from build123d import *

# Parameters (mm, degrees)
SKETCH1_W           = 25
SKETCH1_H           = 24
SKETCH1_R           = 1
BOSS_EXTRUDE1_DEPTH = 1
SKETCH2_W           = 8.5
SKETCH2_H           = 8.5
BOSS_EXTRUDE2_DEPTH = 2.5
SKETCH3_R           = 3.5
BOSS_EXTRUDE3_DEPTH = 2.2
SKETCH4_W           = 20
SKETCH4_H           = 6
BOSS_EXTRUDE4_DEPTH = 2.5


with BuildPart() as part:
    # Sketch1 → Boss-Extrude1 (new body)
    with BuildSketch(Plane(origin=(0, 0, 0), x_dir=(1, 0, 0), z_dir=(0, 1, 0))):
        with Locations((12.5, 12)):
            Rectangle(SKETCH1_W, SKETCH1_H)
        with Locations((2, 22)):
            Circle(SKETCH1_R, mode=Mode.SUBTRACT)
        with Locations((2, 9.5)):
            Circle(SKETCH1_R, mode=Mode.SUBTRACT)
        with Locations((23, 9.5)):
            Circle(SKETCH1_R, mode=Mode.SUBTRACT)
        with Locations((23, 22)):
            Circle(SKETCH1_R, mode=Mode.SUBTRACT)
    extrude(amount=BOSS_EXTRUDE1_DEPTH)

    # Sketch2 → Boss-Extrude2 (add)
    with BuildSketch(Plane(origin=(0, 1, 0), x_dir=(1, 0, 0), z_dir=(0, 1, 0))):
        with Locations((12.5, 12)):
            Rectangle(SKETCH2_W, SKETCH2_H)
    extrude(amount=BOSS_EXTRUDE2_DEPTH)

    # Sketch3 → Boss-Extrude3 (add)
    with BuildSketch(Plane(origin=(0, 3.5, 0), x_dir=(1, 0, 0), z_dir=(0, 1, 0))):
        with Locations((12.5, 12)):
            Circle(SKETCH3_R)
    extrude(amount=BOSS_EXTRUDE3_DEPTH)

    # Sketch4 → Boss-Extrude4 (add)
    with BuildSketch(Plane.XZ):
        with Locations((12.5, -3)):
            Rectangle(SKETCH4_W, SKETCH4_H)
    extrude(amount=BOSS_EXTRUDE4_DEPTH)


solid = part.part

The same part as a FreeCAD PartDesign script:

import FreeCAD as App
import Part
import Sketcher
Q = App.Units.Quantity

doc = App.newDocument("Part")
body = doc.addObject("PartDesign::Body", "Body")

sketch1 = body.newObject("Sketcher::SketchObject", "Sketch")
sketch1.AttachmentSupport = (doc.getObject("XZ_Plane"), [""])
sketch1.MapMode = "FlatFace"
sketch1.addGeometry(Part.LineSegment(App.Vector(0, -24, 0), App.Vector(0, 0, 0)), False)
sketch1.addGeometry(Part.LineSegment(App.Vector(0, 0, 0), App.Vector(25, 0, 0)), False)
sketch1.addGeometry(Part.LineSegment(App.Vector(25, 0, 0), App.Vector(25, -24, 0)), False)
sketch1.addGeometry(Part.LineSegment(App.Vector(25, -24, 0), App.Vector(0, -24, 0)), False)
sketch1.addGeometry(Part.Circle(App.Vector(2, -9.5, 0), App.Vector(0, 0, 1), 1), False)
sketch1.addGeometry(Part.Circle(App.Vector(23, -9.5, 0), App.Vector(0, 0, 1), 1), False)
sketch1.addGeometry(Part.Circle(App.Vector(2, -22, 0), App.Vector(0, 0, 1), 1), False)
sketch1.addGeometry(Part.Circle(App.Vector(23, -22, 0), App.Vector(0, 0, 1), 1), False)
sketch1.addConstraint(Sketcher.Constraint("Coincident", 0, 2, 1, 1))
sketch1.addConstraint(Sketcher.Constraint("Coincident", 1, 2, 2, 1))
sketch1.addConstraint(Sketcher.Constraint("Coincident", 2, 2, 3, 1))
sketch1.addConstraint(Sketcher.Constraint("Coincident", 3, 2, 0, 1))
sketch1.addConstraint(Sketcher.Constraint("Vertical", 0))
sketch1.addConstraint(Sketcher.Constraint("Horizontal", 1))
sketch1.addConstraint(Sketcher.Constraint("Vertical", 2))
sketch1.addConstraint(Sketcher.Constraint("Horizontal", 3))
sketch1.addConstraint(Sketcher.Constraint("Coincident", 0, 2, -1, 1))
sketch1.addConstraint(Sketcher.Constraint("Equal", 4, 5))
sketch1.addConstraint(Sketcher.Constraint("Equal", 5, 6))
sketch1.addConstraint(Sketcher.Constraint("Equal", 6, 7))
sketch1.addConstraint(Sketcher.Constraint("Horizontal", 4, 3, 5, 3))
sketch1.addConstraint(Sketcher.Constraint("Horizontal", 6, 3, 7, 3))
sketch1.addConstraint(Sketcher.Constraint("Vertical", 4, 3, 6, 3))
sketch1.addConstraint(Sketcher.Constraint("Vertical", 5, 3, 7, 3))
sketch1.addConstraint(Sketcher.Constraint("Diameter", 4, Q("2 mm")))
sketch1.addConstraint(Sketcher.Constraint("DistanceX", 1, 1, 1, 2, Q("25 mm")))
sketch1.addConstraint(Sketcher.Constraint("DistanceY", 0, 1, 0, 2, Q("24 mm")))
sketch1.addConstraint(Sketcher.Constraint("DistanceX", -1, 1, 4, 3, Q("2 mm")))
sketch1.addConstraint(Sketcher.Constraint("DistanceX", -1, 1, 5, 3, Q("23 mm")))
sketch1.addConstraint(Sketcher.Constraint("DistanceY", 6, 3, -1, 1, Q("22 mm")))
sketch1.addConstraint(Sketcher.Constraint("DistanceY", 4, 3, -1, 1, Q("9.5 mm")))
pad1 = body.newObject("PartDesign::Pad", "Pad")
pad1.Profile = sketch1
pad1.Length = 1
pad1.Reversed = True

sketch2 = body.newObject("Sketcher::SketchObject", "Sketch001")
sketch2.AttachmentSupport = (doc.getObject("XZ_Plane"), [""])
sketch2.MapMode = "FlatFace"
sketch2.AttachmentOffset = App.Placement(App.Vector(0, 0, -1), App.Rotation())
sketch2.addGeometry(Part.LineSegment(App.Vector(8, -16, 0), App.Vector(8, -8, 0)), False)
sketch2.addGeometry(Part.LineSegment(App.Vector(8, -8, 0), App.Vector(17, -8, 0)), False)
sketch2.addGeometry(Part.LineSegment(App.Vector(17, -8, 0), App.Vector(17, -16, 0)), False)
sketch2.addGeometry(Part.LineSegment(App.Vector(17, -16, 0), App.Vector(8, -16, 0)), False)
sketch2.addConstraint(Sketcher.Constraint("Coincident", 0, 2, 1, 1))
sketch2.addConstraint(Sketcher.Constraint("Coincident", 1, 2, 2, 1))
sketch2.addConstraint(Sketcher.Constraint("Coincident", 2, 2, 3, 1))
sketch2.addConstraint(Sketcher.Constraint("Coincident", 3, 2, 0, 1))
sketch2.addConstraint(Sketcher.Constraint("Vertical", 0))
sketch2.addConstraint(Sketcher.Constraint("Horizontal", 1))
sketch2.addConstraint(Sketcher.Constraint("Vertical", 2))
sketch2.addConstraint(Sketcher.Constraint("Horizontal", 3))
sketch2.addConstraint(Sketcher.Constraint("Equal", 3, 0))
sketch2.addConstraint(Sketcher.Constraint("DistanceX", 1, 1, 1, 2, Q("8.5 mm")))
sketch2.addConstraint(Sketcher.Constraint("DistanceX", -1, 1, 0, 2, Q("8.25 mm")))
sketch2.addConstraint(Sketcher.Constraint("DistanceY", 0, 2, -1, 1, Q("7.75 mm")))
pad2 = body.newObject("PartDesign::Pad", "Pad001")
pad2.Profile = sketch2
pad2.Length = 2.5
pad2.Reversed = True

sketch3 = body.newObject("Sketcher::SketchObject", "Sketch002")
sketch3.AttachmentSupport = (doc.getObject("XZ_Plane"), [""])
sketch3.MapMode = "FlatFace"
sketch3.AttachmentOffset = App.Placement(App.Vector(0, 0, -3.5), App.Rotation())
sketch3.addGeometry(Part.Circle(App.Vector(12.5, -12, 0), App.Vector(0, 0, 1), 3.5), False)
sketch3.addConstraint(Sketcher.Constraint("Diameter", 0, Q("7 mm")))
sketch3.addConstraint(Sketcher.Constraint("DistanceY", 0, 3, -1, 1, Q("12 mm")))
sketch3.addConstraint(Sketcher.Constraint("DistanceX", -1, 1, 0, 3, Q("12.5 mm")))
pad3 = body.newObject("PartDesign::Pad", "Pad002")
pad3.Profile = sketch3
pad3.Length = 2.2
pad3.Reversed = True

sketch4 = body.newObject("Sketcher::SketchObject", "Sketch003")
sketch4.AttachmentSupport = (doc.getObject("XZ_Plane"), [""])
sketch4.MapMode = "FlatFace"
sketch4.addGeometry(Part.LineSegment(App.Vector(2, 0, 0), App.Vector(2, -6, 0)), False)
sketch4.addGeometry(Part.LineSegment(App.Vector(2, -6, 0), App.Vector(22, -6, 0)), False)
sketch4.addGeometry(Part.LineSegment(App.Vector(22, -6, 0), App.Vector(22, 0, 0)), False)
sketch4.addGeometry(Part.LineSegment(App.Vector(22, 0, 0), App.Vector(2, 0, 0)), False)
sketch4.addConstraint(Sketcher.Constraint("Coincident", 0, 2, 1, 1))
sketch4.addConstraint(Sketcher.Constraint("Coincident", 1, 2, 2, 1))
sketch4.addConstraint(Sketcher.Constraint("Coincident", 2, 2, 3, 1))
sketch4.addConstraint(Sketcher.Constraint("Coincident", 3, 2, 0, 1))
sketch4.addConstraint(Sketcher.Constraint("Vertical", 0))
sketch4.addConstraint(Sketcher.Constraint("Horizontal", 1))
sketch4.addConstraint(Sketcher.Constraint("Vertical", 2))
sketch4.addConstraint(Sketcher.Constraint("Horizontal", 3))
sketch4.addConstraint(Sketcher.Constraint("PointOnObject", 2, 2, -1))
sketch4.addConstraint(Sketcher.Constraint("DistanceX", 1, 1, 1, 2, Q("20 mm")))
sketch4.addConstraint(Sketcher.Constraint("DistanceY", 0, 2, 0, 1, Q("6 mm")))
sketch4.addConstraint(Sketcher.Constraint("DistanceX", -1, 1, 0, 2, Q("2.5 mm")))
pad4 = body.newObject("PartDesign::Pad", "Pad003")
pad4.Profile = sketch4
pad4.Length = 2.5

doc.recompute()
